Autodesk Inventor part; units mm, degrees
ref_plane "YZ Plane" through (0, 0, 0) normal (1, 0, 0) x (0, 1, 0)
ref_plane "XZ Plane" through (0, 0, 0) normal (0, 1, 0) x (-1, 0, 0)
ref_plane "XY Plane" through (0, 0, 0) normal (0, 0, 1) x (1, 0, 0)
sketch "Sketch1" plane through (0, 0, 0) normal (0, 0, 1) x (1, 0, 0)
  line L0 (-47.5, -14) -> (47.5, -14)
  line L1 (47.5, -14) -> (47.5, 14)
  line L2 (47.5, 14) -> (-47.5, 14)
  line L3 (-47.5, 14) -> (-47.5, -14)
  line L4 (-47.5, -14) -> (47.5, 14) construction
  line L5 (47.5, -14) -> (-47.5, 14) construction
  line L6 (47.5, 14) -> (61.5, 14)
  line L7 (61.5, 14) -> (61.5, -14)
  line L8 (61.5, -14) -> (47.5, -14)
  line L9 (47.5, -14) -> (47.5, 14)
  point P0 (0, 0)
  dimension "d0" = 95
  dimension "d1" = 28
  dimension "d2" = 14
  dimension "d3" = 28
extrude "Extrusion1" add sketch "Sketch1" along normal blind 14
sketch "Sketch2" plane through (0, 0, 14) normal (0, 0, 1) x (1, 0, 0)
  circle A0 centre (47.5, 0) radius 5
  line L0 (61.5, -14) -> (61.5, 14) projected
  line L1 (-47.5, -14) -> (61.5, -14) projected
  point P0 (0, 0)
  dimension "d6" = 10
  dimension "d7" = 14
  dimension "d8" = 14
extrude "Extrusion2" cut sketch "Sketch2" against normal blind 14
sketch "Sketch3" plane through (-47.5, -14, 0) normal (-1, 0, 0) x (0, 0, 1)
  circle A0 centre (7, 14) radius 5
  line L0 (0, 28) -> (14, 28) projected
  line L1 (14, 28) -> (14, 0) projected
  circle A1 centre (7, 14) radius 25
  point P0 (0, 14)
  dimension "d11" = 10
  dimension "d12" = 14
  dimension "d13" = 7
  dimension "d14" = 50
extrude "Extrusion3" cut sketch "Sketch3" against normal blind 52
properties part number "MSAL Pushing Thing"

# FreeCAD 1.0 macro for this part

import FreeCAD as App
import Part
import Sketcher

V = App.Vector


def add_polygon(sketch, points):
    """Adds a closed chain of lines whose ends are joined by coincident constraints."""
    first, n = sketch.GeometryCount, len(points)
    for a, b in zip(points, points[1:] + points[:1]):
        sketch.addGeometry(Part.LineSegment(App.Vector(*a, 0), App.Vector(*b, 0)), False)
    for i in range(n):
        sketch.addConstraint(Sketcher.Constraint("Coincident", first + i, 2, first + (i + 1) % n, 1))

doc = App.newDocument("Part")
body = doc.addObject("PartDesign::Body", "Body")

sketch1 = body.newObject("Sketcher::SketchObject", "Sketch")
sketch1.AttachmentSupport = (doc.getObject("XY_Plane"), [""])
sketch1.MapMode = "FlatFace"
add_polygon(sketch1, [(-47.5, 14), (-47.5, -14), (61.5, -14), (61.5, 14)])
sketch1.addConstraint([
    Sketcher.Constraint("Vertical", 0),
    Sketcher.Constraint("Horizontal", 1),
    Sketcher.Constraint("Vertical", 2),
    Sketcher.Constraint("Horizontal", 3),
    Sketcher.Constraint("DistanceY", 0, 2, 0, 1, 28.0),
    Sketcher.Constraint("DistanceY", 0, 2, -1, 1, 14.0),
    Sketcher.Constraint("DistanceX", 1, 1, 1, 2, 109.0),
    Sketcher.Constraint("DistanceX", 0, 2, -1, 1, 47.5),
])
pad1 = body.newObject("PartDesign::Pad", "Pad")
pad1.Profile = sketch1
pad1.Length = 14

sketch2 = body.newObject("Sketcher::SketchObject", "Sketch001")
sketch2.AttachmentSupport = (doc.getObject("XY_Plane"), [""])
sketch2.MapMode = "FlatFace"
sketch2.AttachmentOffset = App.Placement(V(0, 0, 14), App.Rotation())
sketch2.addGeometry(Part.Circle(V(47.5, 0, 0), V(0, 0, 1), 5), False)
sketch2.addConstraint([
    Sketcher.Constraint("PointOnObject", 0, 3, -1),
    Sketcher.Constraint("Diameter", 0, 10.0),
    Sketcher.Constraint("DistanceX", -1, 1, 0, 3, 47.5),
])
pocket1 = body.newObject("PartDesign::Pocket", "Pocket")
pocket1.Profile = sketch2
pocket1.Length = 14

sketch3 = body.newObject("Sketcher::SketchObject", "Sketch002")
sketch3.AttachmentSupport = (doc.getObject("YZ_Plane"), [""])
sketch3.MapMode = "FlatFace"
sketch3.AttachmentOffset = App.Placement(V(0, 0, -47.5), App.Rotation())
sketch3.addGeometry([
    Part.Circle(V(0, 7, 0), V(0, 0, 1), 25),
    Part.Circle(V(0, 7, 0), V(0, 0, 1), 5),
], False)
sketch3.addConstraint([
    Sketcher.Constraint("Coincident", 1, 3, 0, 3),
    Sketcher.Constraint("PointOnObject", 0, 3, -2),
    Sketcher.Constraint("Diameter", 0, 50.0),
    Sketcher.Constraint("Diameter", 1, 10.0),
    Sketcher.Constraint("DistanceY", -1, 1, 0, 3, 7.0),
])
pocket2 = body.newObject("PartDesign::Pocket", "Pocket001")
pocket2.Profile = sketch3
pocket2.Length = 52
pocket2.Reversed = True

doc.recompute()
